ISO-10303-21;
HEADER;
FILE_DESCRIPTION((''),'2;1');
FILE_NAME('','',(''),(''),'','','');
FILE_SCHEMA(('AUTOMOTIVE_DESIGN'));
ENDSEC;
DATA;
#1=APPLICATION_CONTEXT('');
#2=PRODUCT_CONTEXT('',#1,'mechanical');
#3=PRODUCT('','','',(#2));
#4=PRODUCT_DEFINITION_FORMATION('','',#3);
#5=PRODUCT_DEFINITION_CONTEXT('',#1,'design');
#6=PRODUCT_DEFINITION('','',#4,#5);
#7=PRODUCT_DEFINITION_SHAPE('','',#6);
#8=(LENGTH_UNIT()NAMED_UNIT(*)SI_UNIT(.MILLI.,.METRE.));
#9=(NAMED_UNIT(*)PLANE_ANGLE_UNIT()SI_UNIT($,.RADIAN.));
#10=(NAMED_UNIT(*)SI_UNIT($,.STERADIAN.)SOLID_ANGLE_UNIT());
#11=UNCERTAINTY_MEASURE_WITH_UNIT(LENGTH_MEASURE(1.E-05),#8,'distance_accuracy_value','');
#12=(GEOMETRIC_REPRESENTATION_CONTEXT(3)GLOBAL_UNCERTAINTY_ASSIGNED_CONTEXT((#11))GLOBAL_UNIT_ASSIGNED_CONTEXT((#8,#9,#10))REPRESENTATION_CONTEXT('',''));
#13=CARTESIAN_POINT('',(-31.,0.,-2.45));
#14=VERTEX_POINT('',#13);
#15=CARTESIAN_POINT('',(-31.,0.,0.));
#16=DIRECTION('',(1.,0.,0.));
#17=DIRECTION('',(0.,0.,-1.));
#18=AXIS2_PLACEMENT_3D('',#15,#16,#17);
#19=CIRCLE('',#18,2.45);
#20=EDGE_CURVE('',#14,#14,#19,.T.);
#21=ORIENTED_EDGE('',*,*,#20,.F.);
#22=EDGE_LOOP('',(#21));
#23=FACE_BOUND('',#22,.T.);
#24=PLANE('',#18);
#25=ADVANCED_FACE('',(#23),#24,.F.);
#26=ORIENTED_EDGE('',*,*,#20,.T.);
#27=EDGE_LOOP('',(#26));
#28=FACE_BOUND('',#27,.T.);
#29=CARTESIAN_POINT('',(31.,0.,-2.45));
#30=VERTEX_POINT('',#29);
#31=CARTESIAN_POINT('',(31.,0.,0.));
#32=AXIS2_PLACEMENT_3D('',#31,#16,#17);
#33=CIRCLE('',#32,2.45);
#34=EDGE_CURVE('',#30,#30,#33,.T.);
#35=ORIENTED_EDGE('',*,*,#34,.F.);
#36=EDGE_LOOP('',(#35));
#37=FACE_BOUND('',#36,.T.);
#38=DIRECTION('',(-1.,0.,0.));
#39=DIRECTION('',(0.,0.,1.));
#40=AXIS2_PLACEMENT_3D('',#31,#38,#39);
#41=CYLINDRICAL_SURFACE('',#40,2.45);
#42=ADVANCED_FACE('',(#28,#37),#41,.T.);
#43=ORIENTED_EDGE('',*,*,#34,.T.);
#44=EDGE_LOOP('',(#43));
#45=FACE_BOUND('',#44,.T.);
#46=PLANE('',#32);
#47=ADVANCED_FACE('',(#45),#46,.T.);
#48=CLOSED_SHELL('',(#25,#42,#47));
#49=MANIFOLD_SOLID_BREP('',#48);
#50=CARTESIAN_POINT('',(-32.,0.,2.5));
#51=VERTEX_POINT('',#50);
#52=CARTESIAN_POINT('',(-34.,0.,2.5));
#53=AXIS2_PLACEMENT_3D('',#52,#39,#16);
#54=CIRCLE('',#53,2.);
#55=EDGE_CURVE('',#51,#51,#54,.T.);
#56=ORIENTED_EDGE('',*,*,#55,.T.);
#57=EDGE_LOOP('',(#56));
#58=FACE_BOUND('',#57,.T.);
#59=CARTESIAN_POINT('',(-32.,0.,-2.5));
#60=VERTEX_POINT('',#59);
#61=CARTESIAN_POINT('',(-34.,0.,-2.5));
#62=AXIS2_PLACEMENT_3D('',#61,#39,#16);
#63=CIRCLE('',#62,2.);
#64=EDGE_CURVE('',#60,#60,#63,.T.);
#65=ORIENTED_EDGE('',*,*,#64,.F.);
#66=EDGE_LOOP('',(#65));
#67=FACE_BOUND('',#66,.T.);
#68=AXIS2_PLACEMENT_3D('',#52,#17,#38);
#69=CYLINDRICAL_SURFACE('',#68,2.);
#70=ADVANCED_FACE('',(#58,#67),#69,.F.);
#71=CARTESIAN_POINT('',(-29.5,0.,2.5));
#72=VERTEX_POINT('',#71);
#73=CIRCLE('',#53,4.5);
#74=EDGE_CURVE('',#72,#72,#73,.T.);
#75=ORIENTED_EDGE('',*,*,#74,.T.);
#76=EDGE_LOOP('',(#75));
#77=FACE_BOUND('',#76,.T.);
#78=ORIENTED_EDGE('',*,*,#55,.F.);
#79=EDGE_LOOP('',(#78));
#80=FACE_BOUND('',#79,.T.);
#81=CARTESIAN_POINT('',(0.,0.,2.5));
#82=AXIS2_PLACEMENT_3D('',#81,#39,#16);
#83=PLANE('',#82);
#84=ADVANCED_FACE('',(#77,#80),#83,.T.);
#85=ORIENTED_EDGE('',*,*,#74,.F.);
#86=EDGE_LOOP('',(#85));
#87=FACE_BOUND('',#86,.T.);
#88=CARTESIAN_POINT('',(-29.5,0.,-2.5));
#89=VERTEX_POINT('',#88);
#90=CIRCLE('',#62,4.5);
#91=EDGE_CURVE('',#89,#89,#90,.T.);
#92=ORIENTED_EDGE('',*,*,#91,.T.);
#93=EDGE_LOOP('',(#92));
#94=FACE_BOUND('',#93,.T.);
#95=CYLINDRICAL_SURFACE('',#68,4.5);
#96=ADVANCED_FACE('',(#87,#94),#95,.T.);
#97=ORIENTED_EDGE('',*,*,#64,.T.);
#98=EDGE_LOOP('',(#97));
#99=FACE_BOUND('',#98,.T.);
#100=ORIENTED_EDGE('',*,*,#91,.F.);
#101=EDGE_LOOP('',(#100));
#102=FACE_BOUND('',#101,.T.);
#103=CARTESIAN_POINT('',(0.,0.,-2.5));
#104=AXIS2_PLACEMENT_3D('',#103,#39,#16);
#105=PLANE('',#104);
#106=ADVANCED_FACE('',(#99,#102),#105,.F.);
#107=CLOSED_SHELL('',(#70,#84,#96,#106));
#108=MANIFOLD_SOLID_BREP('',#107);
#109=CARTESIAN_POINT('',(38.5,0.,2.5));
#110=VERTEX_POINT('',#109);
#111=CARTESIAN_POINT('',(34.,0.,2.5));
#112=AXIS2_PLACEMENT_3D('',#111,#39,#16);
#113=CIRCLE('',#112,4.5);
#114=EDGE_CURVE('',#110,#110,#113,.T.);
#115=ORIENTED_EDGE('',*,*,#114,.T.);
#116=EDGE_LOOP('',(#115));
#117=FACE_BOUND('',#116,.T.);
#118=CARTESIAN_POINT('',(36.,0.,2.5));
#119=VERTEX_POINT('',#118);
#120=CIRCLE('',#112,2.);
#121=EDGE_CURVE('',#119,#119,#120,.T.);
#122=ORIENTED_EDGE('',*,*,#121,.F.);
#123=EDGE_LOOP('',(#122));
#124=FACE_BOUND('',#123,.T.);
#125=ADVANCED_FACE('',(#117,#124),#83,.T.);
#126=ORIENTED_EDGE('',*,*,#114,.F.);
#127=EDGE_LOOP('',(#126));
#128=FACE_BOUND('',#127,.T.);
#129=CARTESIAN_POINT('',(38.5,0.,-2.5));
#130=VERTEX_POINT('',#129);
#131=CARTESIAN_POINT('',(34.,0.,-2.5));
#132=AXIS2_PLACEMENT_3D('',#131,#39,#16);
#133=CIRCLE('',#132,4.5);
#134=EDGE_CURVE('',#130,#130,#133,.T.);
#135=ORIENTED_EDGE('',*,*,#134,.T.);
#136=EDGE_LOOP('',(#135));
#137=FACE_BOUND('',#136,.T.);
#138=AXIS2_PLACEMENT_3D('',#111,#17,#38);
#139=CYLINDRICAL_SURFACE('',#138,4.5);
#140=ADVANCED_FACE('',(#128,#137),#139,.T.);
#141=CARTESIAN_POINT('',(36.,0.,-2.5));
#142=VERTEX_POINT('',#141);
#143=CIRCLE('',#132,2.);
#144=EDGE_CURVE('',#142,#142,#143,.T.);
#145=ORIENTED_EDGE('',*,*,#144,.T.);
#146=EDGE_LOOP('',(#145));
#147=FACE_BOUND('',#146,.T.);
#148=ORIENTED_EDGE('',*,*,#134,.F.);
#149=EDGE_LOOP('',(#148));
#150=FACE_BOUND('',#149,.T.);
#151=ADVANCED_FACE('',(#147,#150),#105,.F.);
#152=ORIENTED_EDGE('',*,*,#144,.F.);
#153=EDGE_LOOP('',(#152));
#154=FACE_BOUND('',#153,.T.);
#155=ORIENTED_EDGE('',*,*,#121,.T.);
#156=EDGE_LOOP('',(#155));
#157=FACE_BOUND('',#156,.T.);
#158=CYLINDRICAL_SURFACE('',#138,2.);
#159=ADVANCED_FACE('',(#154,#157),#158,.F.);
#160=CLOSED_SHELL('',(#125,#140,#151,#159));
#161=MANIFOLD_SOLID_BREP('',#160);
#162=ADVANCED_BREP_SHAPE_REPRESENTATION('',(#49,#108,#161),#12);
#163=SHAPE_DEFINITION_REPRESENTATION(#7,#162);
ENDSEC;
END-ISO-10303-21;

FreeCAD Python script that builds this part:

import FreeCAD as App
import Part
import Sketcher

doc = App.newDocument("Part")
body = doc.addObject("PartDesign::Body", "Body")

sketch1 = body.newObject("Sketcher::SketchObject", "Sketch")
sketch1.AttachmentSupport = (doc.getObject("XY_Plane"), [""])
sketch1.MapMode = "FlatFace"
sketch1.addGeometry(Part.Circle(App.Vector(34, 0, 0), App.Vector(0, 0, 1), 4.5), False)
sketch1.addGeometry(Part.Circle(App.Vector(34, 0, 0), App.Vector(0, 0, 1), 2), False)
sketch1.addConstraint(Sketcher.Constraint("Coincident", 1, 3, 0, 3))
sketch1.addConstraint(Sketcher.Constraint("PointOnObject", 0, 3, -1))
sketch1.addConstraint(Sketcher.Constraint("Diameter", 0, 9.0))
sketch1.addConstraint(Sketcher.Constraint("Diameter", 1, 4.0))
sketch1.addConstraint(Sketcher.Constraint("DistanceX", -1, 1, 0, 3, 34.0))
pad1 = body.newObject("PartDesign::Pad", "Pad")
pad1.Profile = sketch1
pad1.Length = 5
pad1.Midplane = True
body2 = doc.addObject("PartDesign::Body", "Body001")

sketch2 = body2.newObject("Sketcher::SketchObject", "Sketch001")
sketch2.AttachmentSupport = (doc.getObject("XY_Plane001"), [""])
sketch2.MapMode = "FlatFace"
sketch2.addGeometry(Part.Circle(App.Vector(-34, 0, 0), App.Vector(0, 0, 1), 4.5), False)
sketch2.addGeometry(Part.Circle(App.Vector(-34, 0, 0), App.Vector(0, 0, 1), 2), False)
sketch2.addConstraint(Sketcher.Constraint("Coincident", 1, 3, 0, 3))
sketch2.addConstraint(Sketcher.Constraint("PointOnObject", 0, 3, -1))
sketch2.addConstraint(Sketcher.Constraint("Diameter", 0, 9.0))
sketch2.addConstraint(Sketcher.Constraint("Diameter", 1, 4.0))
sketch2.addConstraint(Sketcher.Constraint("DistanceX", 0, 3, -1, 1, 34.0))
pad2 = body2.newObject("PartDesign::Pad", "Pad001")
pad2.Profile = sketch2
pad2.Length = 5
pad2.Midplane = True
body3 = doc.addObject("PartDesign::Body", "Body002")

sketch3 = body3.newObject("Sketcher::SketchObject", "Sketch002")
sketch3.AttachmentSupport = (doc.getObject("YZ_Plane002"), [""])
sketch3.MapMode = "FlatFace"
sketch3.addGeometry(Part.Circle(App.Vector(0, 0, 0), App.Vector(0, 0, 1), 2.5), False)
sketch3.addConstraint(Sketcher.Constraint("Coincident", 0, 3, -1, 1))
sketch3.addConstraint(Sketcher.Constraint("Diameter", 0, 4.9))
pad3 = body3.newObject("PartDesign::Pad", "Pad002")
pad3.Profile = sketch3
pad3.Length = 62
pad3.Midplane = True

doc.recompute()
